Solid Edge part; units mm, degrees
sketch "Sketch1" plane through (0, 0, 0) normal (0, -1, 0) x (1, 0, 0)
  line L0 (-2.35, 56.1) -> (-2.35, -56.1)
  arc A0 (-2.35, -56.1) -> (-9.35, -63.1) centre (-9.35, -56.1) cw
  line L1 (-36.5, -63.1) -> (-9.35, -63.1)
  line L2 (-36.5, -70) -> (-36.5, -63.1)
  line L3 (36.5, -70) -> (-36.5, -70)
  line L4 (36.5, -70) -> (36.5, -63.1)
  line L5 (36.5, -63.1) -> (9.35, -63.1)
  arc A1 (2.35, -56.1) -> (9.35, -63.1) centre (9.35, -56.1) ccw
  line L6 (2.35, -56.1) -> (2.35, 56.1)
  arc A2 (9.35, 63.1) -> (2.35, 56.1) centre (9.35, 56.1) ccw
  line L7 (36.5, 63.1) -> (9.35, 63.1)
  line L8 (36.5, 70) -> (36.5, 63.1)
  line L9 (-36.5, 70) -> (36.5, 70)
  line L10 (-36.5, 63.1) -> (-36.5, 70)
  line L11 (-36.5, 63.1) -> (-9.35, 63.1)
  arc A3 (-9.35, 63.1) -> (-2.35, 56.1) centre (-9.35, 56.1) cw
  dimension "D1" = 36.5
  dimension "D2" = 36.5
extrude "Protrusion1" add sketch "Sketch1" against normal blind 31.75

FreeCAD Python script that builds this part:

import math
import FreeCAD as App
import Part
import Sketcher
Q = App.Units.Quantity

doc = App.newDocument("Part")
body = doc.addObject("PartDesign::Body", "Body")

sketch1 = doc.addObject("Sketcher::SketchObject", "Sketch")
body.addObject(sketch1)
sketch1.AttachmentSupport = (doc.XZ_Plane, [""])
sketch1.MapMode = "FlatFace"
sketch1.addGeometry(Part.ArcOfCircle(Part.Circle(App.Vector(-9, 56, 0), App.Vector(0, 0, 1), 7), math.radians(0), math.radians(90)), False)
sketch1.addGeometry(Part.LineSegment(App.Vector(-2, 56, 0), App.Vector(-2, -56, 0)), False)
sketch1.addGeometry(Part.ArcOfCircle(Part.Circle(App.Vector(-9, -56, 0), App.Vector(0, 0, 1), 7), math.radians(-90), math.radians(0)), False)
sketch1.addGeometry(Part.LineSegment(App.Vector(-9, -63, 0), App.Vector(-36, -63, 0)), False)
sketch1.addGeometry(Part.LineSegment(App.Vector(-36, -63, 0), App.Vector(-36, -70, 0)), False)
sketch1.addGeometry(Part.LineSegment(App.Vector(-36, -70, 0), App.Vector(36, -70, 0)), False)
sketch1.addGeometry(Part.LineSegment(App.Vector(36, -70, 0), App.Vector(36, -63, 0)), False)
sketch1.addGeometry(Part.LineSegment(App.Vector(36, -63, 0), App.Vector(9, -63, 0)), False)
sketch1.addGeometry(Part.ArcOfCircle(Part.Circle(App.Vector(9, -56, 0), App.Vector(0, 0, 1), 7), math.radians(180), math.radians(270)), False)
sketch1.addGeometry(Part.LineSegment(App.Vector(2, -56, 0), App.Vector(2, 56, 0)), False)
sketch1.addGeometry(Part.ArcOfCircle(Part.Circle(App.Vector(9, 56, 0), App.Vector(0, 0, 1), 7), math.radians(90), math.radians(180)), False)
sketch1.addGeometry(Part.LineSegment(App.Vector(9, 63, 0), App.Vector(36, 63, 0)), False)
sketch1.addGeometry(Part.LineSegment(App.Vector(36, 63, 0), App.Vector(36, 70, 0)), False)
sketch1.addGeometry(Part.LineSegment(App.Vector(36, 70, 0), App.Vector(-36, 70, 0)), False)
sketch1.addGeometry(Part.LineSegment(App.Vector(-36, 70, 0), App.Vector(-36, 63, 0)), False)
sketch1.addGeometry(Part.LineSegment(App.Vector(-36, 63, 0), App.Vector(-9, 63, 0)), False)
sketch1.addConstraint(Sketcher.Constraint("Tangent", 0, 1, 1, 1))
sketch1.addConstraint(Sketcher.Constraint("Tangent", 1, 2, 2, 2))
sketch1.addConstraint(Sketcher.Constraint("Tangent", 2, 1, 3, 1))
sketch1.addConstraint(Sketcher.Constraint("Coincident", 3, 2, 4, 1))
sketch1.addConstraint(Sketcher.Constraint("Coincident", 4, 2, 5, 1))
sketch1.addConstraint(Sketcher.Constraint("Coincident", 5, 2, 6, 1))
sketch1.addConstraint(Sketcher.Constraint("Coincident", 6, 2, 7, 1))
sketch1.addConstraint(Sketcher.Constraint("Tangent", 7, 2, 8, 2))
sketch1.addConstraint(Sketcher.Constraint("Tangent", 8, 1, 9, 1))
sketch1.addConstraint(Sketcher.Constraint("Tangent", 9, 2, 10, 2))
sketch1.addConstraint(Sketcher.Constraint("Tangent", 10, 1, 11, 1))
sketch1.addConstraint(Sketcher.Constraint("Coincident", 11, 2, 12, 1))
sketch1.addConstraint(Sketcher.Constraint("Coincident", 12, 2, 13, 1))
sketch1.addConstraint(Sketcher.Constraint("Coincident", 13, 2, 14, 1))
sketch1.addConstraint(Sketcher.Constraint("Coincident", 14, 2, 15, 1))
sketch1.addConstraint(Sketcher.Constraint("Tangent", 15, 2, 0, 2))
sketch1.addConstraint(Sketcher.Constraint("Vertical", 1))
sketch1.addConstraint(Sketcher.Constraint("Horizontal", 3))
sketch1.addConstraint(Sketcher.Constraint("Vertical", 4))
sketch1.addConstraint(Sketcher.Constraint("Horizontal", 5))
sketch1.addConstraint(Sketcher.Constraint("Vertical", 6))
sketch1.addConstraint(Sketcher.Constraint("Horizontal", 7))
sketch1.addConstraint(Sketcher.Constraint("Vertical", 9))
sketch1.addConstraint(Sketcher.Constraint("Horizontal", 11))
sketch1.addConstraint(Sketcher.Constraint("Vertical", 12))
sketch1.addConstraint(Sketcher.Constraint("Horizontal", 13))
sketch1.addConstraint(Sketcher.Constraint("Vertical", 14))
sketch1.addConstraint(Sketcher.Constraint("Horizontal", 15))
sketch1.addConstraint(Sketcher.Constraint("Equal", 0, 2))
sketch1.addConstraint(Sketcher.Constraint("Equal", 2, 8))
sketch1.addConstraint(Sketcher.Constraint("Equal", 8, 10))
sketch1.addConstraint(Sketcher.Constraint("Symmetric", 0, 3, 8, 3, -1, 1))
sketch1.addConstraint(Sketcher.Constraint("Symmetric", 3, 2, 11, 2, -1, 1))
sketch1.addConstraint(Sketcher.Constraint("Symmetric", 5, 2, 13, 2, -1, 1))
sketch1.addConstraint(Sketcher.Constraint("Symmetric", 3, 2, 6, 2, -2))
sketch1.addConstraint(Sketcher.Constraint("Radius", 0, Q("7 mm")))
sketch1.addConstraint(Sketcher.Constraint("DistanceX", 3, 2, -1, 1, Q("36.5 mm")))
sketch1.addConstraint(Sketcher.Constraint("DistanceY", 1, 2, 1, 1, Q("112.2 mm")))
sketch1.addConstraint(Sketcher.Constraint("DistanceY", 4, 2, 4, 1, Q("6.9 mm")))
sketch1.addConstraint(Sketcher.Constraint("DistanceX", 3, 2, 3, 1, Q("27.15 mm")))
pad1 = doc.addObject("PartDesign::Pad", "Pad")
body.addObject(pad1)
pad1.Profile = sketch1
pad1.Length = 31.75
pad1.Reversed = True

doc.recompute()
